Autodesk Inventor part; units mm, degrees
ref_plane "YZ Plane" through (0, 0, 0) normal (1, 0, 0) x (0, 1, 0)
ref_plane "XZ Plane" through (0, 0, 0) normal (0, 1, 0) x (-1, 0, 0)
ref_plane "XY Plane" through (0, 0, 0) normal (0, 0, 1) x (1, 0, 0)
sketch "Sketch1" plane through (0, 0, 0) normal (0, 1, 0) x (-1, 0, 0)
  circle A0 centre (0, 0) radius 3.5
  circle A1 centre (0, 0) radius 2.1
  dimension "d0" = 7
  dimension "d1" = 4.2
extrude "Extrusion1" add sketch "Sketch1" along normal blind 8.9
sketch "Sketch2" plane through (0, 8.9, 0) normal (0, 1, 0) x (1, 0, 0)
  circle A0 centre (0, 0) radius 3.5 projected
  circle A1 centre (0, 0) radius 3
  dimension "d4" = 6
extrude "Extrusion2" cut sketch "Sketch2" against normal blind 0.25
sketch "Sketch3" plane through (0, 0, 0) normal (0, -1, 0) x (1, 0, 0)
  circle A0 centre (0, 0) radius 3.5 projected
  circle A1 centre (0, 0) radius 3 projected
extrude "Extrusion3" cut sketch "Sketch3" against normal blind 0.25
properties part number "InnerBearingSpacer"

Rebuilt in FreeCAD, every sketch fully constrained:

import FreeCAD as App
import Part
import Sketcher
Q = App.Units.Quantity

doc = App.newDocument("Part")
body = doc.addObject("PartDesign::Body", "Body")

# Sketch on XZ plane
sketch1 = doc.addObject("Sketcher::SketchObject", "Sketch")
body.addObject(sketch1)
sketch1.AttachmentSupport = (doc.XZ_Plane, [""])
sketch1.MapMode = "FlatFace"
sketch1.addGeometry(Part.Circle(App.Vector(0, 0, 0), App.Vector(0, 0, 1), 3.5), False)
sketch1.addGeometry(Part.Circle(App.Vector(0, 0, 0), App.Vector(0, 0, 1), 2.1), False)
sketch1.addConstraint(Sketcher.Constraint("Coincident", 0, 3, -1, 1))
sketch1.addConstraint(Sketcher.Constraint("Coincident", 1, 3, -1, 1))
sketch1.addConstraint(Sketcher.Constraint("Diameter", 0, Q("7 mm")))
sketch1.addConstraint(Sketcher.Constraint("Diameter", 1, Q("4.2 mm")))
pad1 = doc.addObject("PartDesign::Pad", "Pad")
body.addObject(pad1)
pad1.Profile = sketch1
pad1.Length = 8.9
pad1.Reversed = True

# Sketch on XZ plane
sketch2 = doc.addObject("Sketcher::SketchObject", "Sketch001")
body.addObject(sketch2)
sketch2.AttachmentSupport = (doc.XZ_Plane, [""])
sketch2.MapMode = "FlatFace"
sketch2.AttachmentOffset = App.Placement(App.Vector(0, 0, -8.9), App.Rotation())
sketch2.addGeometry(Part.Circle(App.Vector(0, 0, 0), App.Vector(0, 0, 1), 3.5), False)
sketch2.addGeometry(Part.Circle(App.Vector(0, 0, 0), App.Vector(0, 0, 1), 3), False)
sketch2.addConstraint(Sketcher.Constraint("Coincident", 0, 3, -1, 1))
sketch2.addConstraint(Sketcher.Constraint("Coincident", 1, 3, -1, 1))
sketch2.addConstraint(Sketcher.Constraint("Diameter", 1, Q("6 mm")))
sketch2.addConstraint(Sketcher.Constraint("Diameter", 0, Q("7 mm")))
pocket1 = doc.addObject("PartDesign::Pocket", "Pocket")
body.addObject(pocket1)
pocket1.Profile = sketch2
pocket1.Length = 0.25
pocket1.Reversed = True

# Sketch on XZ plane
sketch3 = doc.addObject("Sketcher::SketchObject", "Sketch002")
body.addObject(sketch3)
sketch3.AttachmentSupport = (doc.XZ_Plane, [""])
sketch3.MapMode = "FlatFace"
sketch3.addGeometry(Part.Circle(App.Vector(0, 0, 0), App.Vector(0, 0, 1), 3.5), False)
sketch3.addGeometry(Part.Circle(App.Vector(0, 0, 0), App.Vector(0, 0, 1), 3), False)
sketch3.addConstraint(Sketcher.Constraint("Coincident", 0, 3, -1, 1))
sketch3.addConstraint(Sketcher.Constraint("Coincident", 1, 3, -1, 1))
sketch3.addConstraint(Sketcher.Constraint("Diameter", 0, Q("7 mm")))
sketch3.addConstraint(Sketcher.Constraint("Diameter", 1, Q("6 mm")))
pocket2 = doc.addObject("PartDesign::Pocket", "Pocket001")
body.addObject(pocket2)
pocket2.Profile = sketch3
pocket2.Length = 0.25

doc.recompute()
